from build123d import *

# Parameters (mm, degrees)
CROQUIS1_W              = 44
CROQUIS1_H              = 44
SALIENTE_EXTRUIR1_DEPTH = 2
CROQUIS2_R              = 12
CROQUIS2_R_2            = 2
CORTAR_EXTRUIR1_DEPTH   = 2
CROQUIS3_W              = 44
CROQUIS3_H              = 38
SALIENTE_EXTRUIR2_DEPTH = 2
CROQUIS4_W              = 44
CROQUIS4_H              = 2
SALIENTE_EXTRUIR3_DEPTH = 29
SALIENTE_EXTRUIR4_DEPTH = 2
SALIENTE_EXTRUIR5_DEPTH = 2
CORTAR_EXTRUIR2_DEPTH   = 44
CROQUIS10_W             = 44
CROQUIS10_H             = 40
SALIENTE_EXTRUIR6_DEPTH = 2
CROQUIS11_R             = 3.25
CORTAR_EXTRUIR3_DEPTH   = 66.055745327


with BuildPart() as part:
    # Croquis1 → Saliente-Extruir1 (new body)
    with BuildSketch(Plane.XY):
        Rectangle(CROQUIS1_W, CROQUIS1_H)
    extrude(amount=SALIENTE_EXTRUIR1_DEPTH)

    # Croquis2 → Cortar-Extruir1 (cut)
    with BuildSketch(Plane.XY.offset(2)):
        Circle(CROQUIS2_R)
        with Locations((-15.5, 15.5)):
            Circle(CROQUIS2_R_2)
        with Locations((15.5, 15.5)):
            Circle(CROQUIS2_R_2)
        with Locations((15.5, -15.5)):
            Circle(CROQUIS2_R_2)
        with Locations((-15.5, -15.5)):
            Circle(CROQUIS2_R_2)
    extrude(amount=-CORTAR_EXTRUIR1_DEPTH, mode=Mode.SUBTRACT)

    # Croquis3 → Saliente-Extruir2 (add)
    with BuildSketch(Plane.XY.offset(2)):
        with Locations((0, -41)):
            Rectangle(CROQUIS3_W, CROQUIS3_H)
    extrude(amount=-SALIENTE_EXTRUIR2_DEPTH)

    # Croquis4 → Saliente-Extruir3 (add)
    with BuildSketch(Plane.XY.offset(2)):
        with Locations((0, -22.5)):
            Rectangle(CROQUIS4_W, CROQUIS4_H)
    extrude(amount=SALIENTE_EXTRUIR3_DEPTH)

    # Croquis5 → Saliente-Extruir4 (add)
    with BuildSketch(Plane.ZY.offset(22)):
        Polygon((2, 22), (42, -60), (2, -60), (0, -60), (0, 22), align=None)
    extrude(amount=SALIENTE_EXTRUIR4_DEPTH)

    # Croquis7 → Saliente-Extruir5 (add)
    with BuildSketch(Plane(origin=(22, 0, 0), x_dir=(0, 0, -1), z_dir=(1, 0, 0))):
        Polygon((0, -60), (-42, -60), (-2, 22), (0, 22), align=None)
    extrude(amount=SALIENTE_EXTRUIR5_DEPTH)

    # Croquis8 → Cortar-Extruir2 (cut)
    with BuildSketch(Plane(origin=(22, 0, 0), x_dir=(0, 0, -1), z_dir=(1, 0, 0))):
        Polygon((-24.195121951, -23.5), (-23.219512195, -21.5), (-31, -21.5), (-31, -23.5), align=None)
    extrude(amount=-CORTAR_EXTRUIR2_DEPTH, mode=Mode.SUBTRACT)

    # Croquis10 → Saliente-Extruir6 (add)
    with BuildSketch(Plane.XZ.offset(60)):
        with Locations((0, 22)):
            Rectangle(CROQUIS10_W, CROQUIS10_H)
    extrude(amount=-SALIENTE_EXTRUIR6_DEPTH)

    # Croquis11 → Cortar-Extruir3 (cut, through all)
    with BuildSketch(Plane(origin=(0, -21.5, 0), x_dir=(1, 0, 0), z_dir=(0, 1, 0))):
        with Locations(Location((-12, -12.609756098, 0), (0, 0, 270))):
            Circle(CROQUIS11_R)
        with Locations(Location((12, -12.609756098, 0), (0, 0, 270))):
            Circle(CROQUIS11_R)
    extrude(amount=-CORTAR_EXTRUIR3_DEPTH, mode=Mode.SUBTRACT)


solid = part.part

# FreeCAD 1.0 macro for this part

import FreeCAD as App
import Part
import Sketcher
Q = App.Units.Quantity


def add_polygon(sketch, points):
    """Adds a closed chain of lines whose ends are joined by coincident constraints."""
    first, n = sketch.GeometryCount, len(points)
    for a, b in zip(points, points[1:] + points[:1]):
        sketch.addGeometry(Part.LineSegment(App.Vector(*a, 0), App.Vector(*b, 0)), False)
    for i in range(n):
        sketch.addConstraint(Sketcher.Constraint("Coincident", first + i, 2, first + (i + 1) % n, 1))

doc = App.newDocument("Part")
params = doc.addObject("Spreadsheet::Sheet", "Params")
for row, (alias, value) in enumerate([
    ("sketch1_width", "44 mm"),
    ("pad1_length", "2 mm"),
    ("sketch2_diameter", "24 mm"),
    ("sketch2_diameter2", "4 mm"),
    ("pocket1_length", "2 mm"),
    ("sketch3_width", "44 mm"),
    ("sketch3_height", "38 mm"),
    ("pad2_length", "2 mm"),
    ("sketch4_width", "44 mm"),
    ("sketch4_height", "2 mm"),
    ("pad3_length", "29 mm"),
    ("sketch5_width", "82 mm"),
    ("sketch5_height", "2 mm"),
    ("sketch5_height2", "42 mm"),
    ("pad4_length", "2 mm"),
    ("sketch6_width", "82 mm"),
    ("sketch6_height", "42 mm"),
    ("sketch6_height2", "2 mm"),
    ("pad5_length", "2 mm"),
    ("sketch7_width", "2 mm"),
    ("pocket2_length", "44 mm"),
    ("sketch8_width", "44 mm"),
    ("sketch8_height", "40 mm"),
    ("pad6_length", "2 mm"),
    ("sketch9_diameter", "6.5 mm"),
], start=1):
    params.set(f"A{row}", alias)
    params.set(f"B{row}", "=" + value)
    params.setAlias(f"B{row}", alias)

body = doc.addObject("PartDesign::Body", "Body")

# Sketch on XY plane
sketch1 = doc.addObject("Sketcher::SketchObject", "Sketch")
body.addObject(sketch1)
sketch1.AttachmentSupport = (doc.XY_Plane, [""])
sketch1.MapMode = "FlatFace"
add_polygon(sketch1, [(-22, 22), (-22, -22), (22, -22), (22, 22)])  # lines 0-3
sketch1.addConstraint([
    Sketcher.Constraint("Vertical", 0),
    Sketcher.Constraint("Horizontal", 1),
    Sketcher.Constraint("Vertical", 2),
    Sketcher.Constraint("Horizontal", 3),
    Sketcher.Constraint("Symmetric", 0, 2, 2, 2, -1, 1),
    Sketcher.Constraint("Equal", 3, 0),
    Sketcher.Constraint("DistanceX", 1, 1, 1, 2, Q("44 mm")),
])
sketch1.setExpression("Constraints[10]", "Params.sketch1_width")
pad1 = doc.addObject("PartDesign::Pad", "Pad")
body.addObject(pad1)
pad1.Profile = sketch1
pad1.setExpression("Length", "Params.pad1_length")

# Sketch on XY plane
sketch2 = doc.addObject("Sketcher::SketchObject", "Sketch001")
body.addObject(sketch2)
sketch2.AttachmentSupport = (doc.XY_Plane, [""])
sketch2.MapMode = "FlatFace"
sketch2.AttachmentOffset = App.Placement(App.Vector(0, 0, 2), App.Rotation())
sketch2.addGeometry([
    Part.Circle(App.Vector(0, 0, 0), App.Vector(0, 0, 1), 12),  # 0
    Part.Circle(App.Vector(-15.5, 15.5, 0), App.Vector(0, 0, 1), 2),  # 1
    Part.Circle(App.Vector(15.5, 15.5, 0), App.Vector(0, 0, 1), 2),  # 2
    Part.Circle(App.Vector(15.5, -15.5, 0), App.Vector(0, 0, 1), 2),  # 3
    Part.Circle(App.Vector(-15.5, -15.5, 0), App.Vector(0, 0, 1), 2),  # 4
], False)
sketch2.addConstraint([
    Sketcher.Constraint("Coincident", 0, 3, -1, 1),
    Sketcher.Constraint("Equal", 1, 2),
    Sketcher.Constraint("Equal", 2, 3),
    Sketcher.Constraint("Equal", 3, 4),
    Sketcher.Constraint("Symmetric", 1, 3, 3, 3, -1, 1),
    Sketcher.Constraint("Symmetric", 2, 3, 4, 3, -1, 1),
    Sketcher.Constraint("Symmetric", 1, 3, 2, 3, -2),
    Sketcher.Constraint("Diameter", 0, Q("24 mm")),
    Sketcher.Constraint("Diameter", 1, Q("4 mm")),
    Sketcher.Constraint("DistanceX", 1, 3, 2, 3, Q("31 mm")),
    Sketcher.Constraint("DistanceY", 3, 3, 2, 3, Q("31 mm")),
])
sketch2.setExpression("Constraints[7]", "Params.sketch2_diameter")
sketch2.setExpression("Constraints[8]", "Params.sketch2_diameter2")
pocket1 = doc.addObject("PartDesign::Pocket", "Pocket")
body.addObject(pocket1)
pocket1.Profile = sketch2
pocket1.setExpression("Length", "Params.pocket1_length")

# Sketch on XY plane
sketch3 = doc.addObject("Sketcher::SketchObject", "Sketch002")
body.addObject(sketch3)
sketch3.AttachmentSupport = (doc.XY_Plane, [""])
sketch3.MapMode = "FlatFace"
sketch3.AttachmentOffset = App.Placement(App.Vector(0, 0, 2), App.Rotation())
add_polygon(sketch3, [(-22, -22), (-22, -60), (22, -60), (22, -22)])  # lines 0-3
sketch3.addConstraint([
    Sketcher.Constraint("Vertical", 0),
    Sketcher.Constraint("Horizontal", 1),
    Sketcher.Constraint("Vertical", 2),
    Sketcher.Constraint("Horizontal", 3),
    Sketcher.Constraint("DistanceX", 1, 1, 1, 2, Q("44 mm")),
    Sketcher.Constraint("DistanceY", 0, 2, 0, 1, Q("38 mm")),
    Sketcher.Constraint("DistanceX", 0, 2, -1, 1, Q("22 mm")),
    Sketcher.Constraint("DistanceY", 0, 2, -1, 1, Q("60 mm")),
])
sketch3.setExpression("Constraints[8]", "Params.sketch3_width")
sketch3.setExpression("Constraints[9]", "Params.sketch3_height")
pad2 = doc.addObject("PartDesign::Pad", "Pad001")
body.addObject(pad2)
pad2.Profile = sketch3
pad2.setExpression("Length", "Params.pad2_length")
pad2.Reversed = True

# Sketch on XY plane
sketch4 = doc.addObject("Sketcher::SketchObject", "Sketch003")
body.addObject(sketch4)
sketch4.AttachmentSupport = (doc.XY_Plane, [""])
sketch4.MapMode = "FlatFace"
sketch4.AttachmentOffset = App.Placement(App.Vector(0, 0, 2), App.Rotation())
add_polygon(sketch4, [(-22, -21.5), (-22, -23.5), (22, -23.5), (22, -21.5)])  # lines 0-3
sketch4.addConstraint([
    Sketcher.Constraint("Vertical", 0),
    Sketcher.Constraint("Horizontal", 1),
    Sketcher.Constraint("Vertical", 2),
    Sketcher.Constraint("Horizontal", 3),
    Sketcher.Constraint("DistanceX", 1, 1, 1, 2, Q("44 mm")),
    Sketcher.Constraint("DistanceY", 0, 2, 0, 1, Q("2 mm")),
    Sketcher.Constraint("DistanceX", 0, 2, -1, 1, Q("22 mm")),
    Sketcher.Constraint("DistanceY", 0, 2, -1, 1, Q("23.5 mm")),
])
sketch4.setExpression("Constraints[8]", "Params.sketch4_width")
sketch4.setExpression("Constraints[9]", "Params.sketch4_height")
pad3 = doc.addObject("PartDesign::Pad", "Pad002")
body.addObject(pad3)
pad3.Profile = sketch4
pad3.setExpression("Length", "Params.pad3_length")

# Sketch on YZ plane
sketch5 = doc.addObject("Sketcher::SketchObject", "Sketch004")
body.addObject(sketch5)
sketch5.AttachmentSupport = (doc.YZ_Plane, [""])
sketch5.MapMode = "FlatFace"
sketch5.AttachmentOffset = App.Placement(App.Vector(0, 0, -22), App.Rotation())
add_polygon(sketch5, [(-60, 42), (22, 2), (22, 0), (-60, 0)])  # lines 0-3
sketch5.addConstraint([
    Sketcher.Constraint("Vertical", 1),
    Sketcher.Constraint("Horizontal", 2),
    Sketcher.Constraint("Vertical", 3),
    Sketcher.Constraint("PointOnObject", 1, 2, -1),
    Sketcher.Constraint("DistanceX", 2, 2, 2, 1, Q("82 mm")),
    Sketcher.Constraint("DistanceY", 1, 2, 1, 1, Q("2 mm")),
    Sketcher.Constraint("DistanceY", 3, 1, 3, 2, Q("42 mm")),
    Sketcher.Constraint("DistanceX", -1, 1, 0, 2, Q("22 mm")),
])
sketch5.setExpression("Constraints[8]", "Params.sketch5_width")
sketch5.setExpression("Constraints[9]", "Params.sketch5_height")
sketch5.setExpression("Constraints[10]", "Params.sketch5_height2")
pad4 = doc.addObject("PartDesign::Pad", "Pad003")
body.addObject(pad4)
pad4.Profile = sketch5
pad4.setExpression("Length", "Params.pad4_length")
pad4.Reversed = True

# Sketch on YZ plane
sketch6 = doc.addObject("Sketcher::SketchObject", "Sketch005")
body.addObject(sketch6)
sketch6.AttachmentSupport = (doc.YZ_Plane, [""])
sketch6.MapMode = "FlatFace"
sketch6.AttachmentOffset = App.Placement(App.Vector(0, 0, 22), App.Rotation())
add_polygon(sketch6, [(-60, 42), (-60, 0), (22, 0), (22, 2)])  # lines 0-3
sketch6.addConstraint([
    Sketcher.Constraint("Vertical", 0),
    Sketcher.Constraint("Horizontal", 1),
    Sketcher.Constraint("Vertical", 2),
    Sketcher.Constraint("PointOnObject", 0, 2, -1),
    Sketcher.Constraint("DistanceX", 1, 1, 1, 2, Q("82 mm")),
    Sketcher.Constraint("DistanceY", 0, 2, 0, 1, Q("42 mm")),
    Sketcher.Constraint("DistanceY", 2, 1, 2, 2, Q("2 mm")),
    Sketcher.Constraint("DistanceX", 0, 2, -1, 1, Q("60 mm")),
])
sketch6.setExpression("Constraints[8]", "Params.sketch6_width")
sketch6.setExpression("Constraints[9]", "Params.sketch6_height")
sketch6.setExpression("Constraints[10]", "Params.sketch6_height2")
pad5 = doc.addObject("PartDesign::Pad", "Pad004")
body.addObject(pad5)
pad5.Profile = sketch6
pad5.setExpression("Length", "Params.pad5_length")

# Sketch on YZ plane
sketch7 = doc.addObject("Sketcher::SketchObject", "Sketch006")
body.addObject(sketch7)
sketch7.AttachmentSupport = (doc.YZ_Plane, [""])
sketch7.MapMode = "FlatFace"
sketch7.AttachmentOffset = App.Placement(App.Vector(0, 0, 22), App.Rotation())
add_polygon(sketch7, [(-23.5, 24.195122), (-21.5, 23.219512), (-21.5, 31), (-23.5, 31)])  # lines 0-3
sketch7.addConstraint([
    Sketcher.Constraint("Vertical", 1),
    Sketcher.Constraint("Horizontal", 2),
    Sketcher.Constraint("Vertical", 3),
    Sketcher.Constraint("DistanceX", 2, 2, 2, 1, Q("2 mm")),
    Sketcher.Constraint("DistanceY", -1, 1, 1, 2, Q("31 mm")),
    Sketcher.Constraint("DistanceX", 0, 2, -1, 1, Q("21.5 mm")),
    Sketcher.Constraint("DistanceY", 3, 2, 3, 1, Q("6.804878 mm")),
    Sketcher.Constraint("DistanceY", 1, 1, 1, 2, Q("7.780488 mm")),
])
sketch7.setExpression("Constraints[7]", "Params.sketch7_width")
pocket2 = doc.addObject("PartDesign::Pocket", "Pocket001")
body.addObject(pocket2)
pocket2.Profile = sketch7
pocket2.setExpression("Length", "Params.pocket2_length")

# Sketch on XZ plane
sketch8 = doc.addObject("Sketcher::SketchObject", "Sketch007")
body.addObject(sketch8)
sketch8.AttachmentSupport = (doc.XZ_Plane, [""])
sketch8.MapMode = "FlatFace"
sketch8.AttachmentOffset = App.Placement(App.Vector(0, 0, 60), App.Rotation())
add_polygon(sketch8, [(-22, 42), (-22, 2), (22, 2), (22, 42)])  # lines 0-3
sketch8.addConstraint([
    Sketcher.Constraint("Vertical", 0),
    Sketcher.Constraint("Horizontal", 1),
    Sketcher.Constraint("Vertical", 2),
    Sketcher.Constraint("Horizontal", 3),
    Sketcher.Constraint("DistanceX", 1, 1, 1, 2, Q("44 mm")),
    Sketcher.Constraint("DistanceY", 0, 2, 0, 1, Q("40 mm")),
    Sketcher.Constraint("DistanceX", 0, 2, -1, 1, Q("22 mm")),
    Sketcher.Constraint("DistanceY", -1, 1, 0, 2, Q("2 mm")),
])
sketch8.setExpression("Constraints[8]", "Params.sketch8_width")
sketch8.setExpression("Constraints[9]", "Params.sketch8_height")
pad6 = doc.addObject("PartDesign::Pad", "Pad005")
body.addObject(pad6)
pad6.Profile = sketch8
pad6.setExpression("Length", "Params.pad6_length")
pad6.Reversed = True

# Sketch on XZ plane
sketch9 = doc.addObject("Sketcher::SketchObject", "Sketch008")
body.addObject(sketch9)
sketch9.AttachmentSupport = (doc.XZ_Plane, [""])
sketch9.MapMode = "FlatFace"
sketch9.AttachmentOffset = App.Placement(App.Vector(0, 0, 21.5), App.Rotation())
sketch9.addGeometry([
    Part.Circle(App.Vector(-12, 12.609756, 0), App.Vector(0, 0, 1), 3.25),
    Part.Circle(App.Vector(12, 12.609756, 0), App.Vector(0, 0, 1), 3.25),
], False)
sketch9.addConstraint([
    Sketcher.Constraint("Equal", 0, 1),
    Sketcher.Constraint("Symmetric", 0, 3, 1, 3, -2),
    Sketcher.Constraint("Diameter", 0, Q("6.5 mm")),
    Sketcher.Constraint("DistanceX", 0, 3, -1, 1, Q("12 mm")),
    Sketcher.Constraint("DistanceY", -1, 1, 0, 3, Q("12.609756 mm")),
])
sketch9.setExpression("Constraints[2]", "Params.sketch9_diameter")
pocket3 = doc.addObject("PartDesign::Pocket", "Pocket002")
body.addObject(pocket3)
pocket3.Profile = sketch9
pocket3.Type = "ThroughAll"
pocket3.Reversed = True

doc.recompute()
